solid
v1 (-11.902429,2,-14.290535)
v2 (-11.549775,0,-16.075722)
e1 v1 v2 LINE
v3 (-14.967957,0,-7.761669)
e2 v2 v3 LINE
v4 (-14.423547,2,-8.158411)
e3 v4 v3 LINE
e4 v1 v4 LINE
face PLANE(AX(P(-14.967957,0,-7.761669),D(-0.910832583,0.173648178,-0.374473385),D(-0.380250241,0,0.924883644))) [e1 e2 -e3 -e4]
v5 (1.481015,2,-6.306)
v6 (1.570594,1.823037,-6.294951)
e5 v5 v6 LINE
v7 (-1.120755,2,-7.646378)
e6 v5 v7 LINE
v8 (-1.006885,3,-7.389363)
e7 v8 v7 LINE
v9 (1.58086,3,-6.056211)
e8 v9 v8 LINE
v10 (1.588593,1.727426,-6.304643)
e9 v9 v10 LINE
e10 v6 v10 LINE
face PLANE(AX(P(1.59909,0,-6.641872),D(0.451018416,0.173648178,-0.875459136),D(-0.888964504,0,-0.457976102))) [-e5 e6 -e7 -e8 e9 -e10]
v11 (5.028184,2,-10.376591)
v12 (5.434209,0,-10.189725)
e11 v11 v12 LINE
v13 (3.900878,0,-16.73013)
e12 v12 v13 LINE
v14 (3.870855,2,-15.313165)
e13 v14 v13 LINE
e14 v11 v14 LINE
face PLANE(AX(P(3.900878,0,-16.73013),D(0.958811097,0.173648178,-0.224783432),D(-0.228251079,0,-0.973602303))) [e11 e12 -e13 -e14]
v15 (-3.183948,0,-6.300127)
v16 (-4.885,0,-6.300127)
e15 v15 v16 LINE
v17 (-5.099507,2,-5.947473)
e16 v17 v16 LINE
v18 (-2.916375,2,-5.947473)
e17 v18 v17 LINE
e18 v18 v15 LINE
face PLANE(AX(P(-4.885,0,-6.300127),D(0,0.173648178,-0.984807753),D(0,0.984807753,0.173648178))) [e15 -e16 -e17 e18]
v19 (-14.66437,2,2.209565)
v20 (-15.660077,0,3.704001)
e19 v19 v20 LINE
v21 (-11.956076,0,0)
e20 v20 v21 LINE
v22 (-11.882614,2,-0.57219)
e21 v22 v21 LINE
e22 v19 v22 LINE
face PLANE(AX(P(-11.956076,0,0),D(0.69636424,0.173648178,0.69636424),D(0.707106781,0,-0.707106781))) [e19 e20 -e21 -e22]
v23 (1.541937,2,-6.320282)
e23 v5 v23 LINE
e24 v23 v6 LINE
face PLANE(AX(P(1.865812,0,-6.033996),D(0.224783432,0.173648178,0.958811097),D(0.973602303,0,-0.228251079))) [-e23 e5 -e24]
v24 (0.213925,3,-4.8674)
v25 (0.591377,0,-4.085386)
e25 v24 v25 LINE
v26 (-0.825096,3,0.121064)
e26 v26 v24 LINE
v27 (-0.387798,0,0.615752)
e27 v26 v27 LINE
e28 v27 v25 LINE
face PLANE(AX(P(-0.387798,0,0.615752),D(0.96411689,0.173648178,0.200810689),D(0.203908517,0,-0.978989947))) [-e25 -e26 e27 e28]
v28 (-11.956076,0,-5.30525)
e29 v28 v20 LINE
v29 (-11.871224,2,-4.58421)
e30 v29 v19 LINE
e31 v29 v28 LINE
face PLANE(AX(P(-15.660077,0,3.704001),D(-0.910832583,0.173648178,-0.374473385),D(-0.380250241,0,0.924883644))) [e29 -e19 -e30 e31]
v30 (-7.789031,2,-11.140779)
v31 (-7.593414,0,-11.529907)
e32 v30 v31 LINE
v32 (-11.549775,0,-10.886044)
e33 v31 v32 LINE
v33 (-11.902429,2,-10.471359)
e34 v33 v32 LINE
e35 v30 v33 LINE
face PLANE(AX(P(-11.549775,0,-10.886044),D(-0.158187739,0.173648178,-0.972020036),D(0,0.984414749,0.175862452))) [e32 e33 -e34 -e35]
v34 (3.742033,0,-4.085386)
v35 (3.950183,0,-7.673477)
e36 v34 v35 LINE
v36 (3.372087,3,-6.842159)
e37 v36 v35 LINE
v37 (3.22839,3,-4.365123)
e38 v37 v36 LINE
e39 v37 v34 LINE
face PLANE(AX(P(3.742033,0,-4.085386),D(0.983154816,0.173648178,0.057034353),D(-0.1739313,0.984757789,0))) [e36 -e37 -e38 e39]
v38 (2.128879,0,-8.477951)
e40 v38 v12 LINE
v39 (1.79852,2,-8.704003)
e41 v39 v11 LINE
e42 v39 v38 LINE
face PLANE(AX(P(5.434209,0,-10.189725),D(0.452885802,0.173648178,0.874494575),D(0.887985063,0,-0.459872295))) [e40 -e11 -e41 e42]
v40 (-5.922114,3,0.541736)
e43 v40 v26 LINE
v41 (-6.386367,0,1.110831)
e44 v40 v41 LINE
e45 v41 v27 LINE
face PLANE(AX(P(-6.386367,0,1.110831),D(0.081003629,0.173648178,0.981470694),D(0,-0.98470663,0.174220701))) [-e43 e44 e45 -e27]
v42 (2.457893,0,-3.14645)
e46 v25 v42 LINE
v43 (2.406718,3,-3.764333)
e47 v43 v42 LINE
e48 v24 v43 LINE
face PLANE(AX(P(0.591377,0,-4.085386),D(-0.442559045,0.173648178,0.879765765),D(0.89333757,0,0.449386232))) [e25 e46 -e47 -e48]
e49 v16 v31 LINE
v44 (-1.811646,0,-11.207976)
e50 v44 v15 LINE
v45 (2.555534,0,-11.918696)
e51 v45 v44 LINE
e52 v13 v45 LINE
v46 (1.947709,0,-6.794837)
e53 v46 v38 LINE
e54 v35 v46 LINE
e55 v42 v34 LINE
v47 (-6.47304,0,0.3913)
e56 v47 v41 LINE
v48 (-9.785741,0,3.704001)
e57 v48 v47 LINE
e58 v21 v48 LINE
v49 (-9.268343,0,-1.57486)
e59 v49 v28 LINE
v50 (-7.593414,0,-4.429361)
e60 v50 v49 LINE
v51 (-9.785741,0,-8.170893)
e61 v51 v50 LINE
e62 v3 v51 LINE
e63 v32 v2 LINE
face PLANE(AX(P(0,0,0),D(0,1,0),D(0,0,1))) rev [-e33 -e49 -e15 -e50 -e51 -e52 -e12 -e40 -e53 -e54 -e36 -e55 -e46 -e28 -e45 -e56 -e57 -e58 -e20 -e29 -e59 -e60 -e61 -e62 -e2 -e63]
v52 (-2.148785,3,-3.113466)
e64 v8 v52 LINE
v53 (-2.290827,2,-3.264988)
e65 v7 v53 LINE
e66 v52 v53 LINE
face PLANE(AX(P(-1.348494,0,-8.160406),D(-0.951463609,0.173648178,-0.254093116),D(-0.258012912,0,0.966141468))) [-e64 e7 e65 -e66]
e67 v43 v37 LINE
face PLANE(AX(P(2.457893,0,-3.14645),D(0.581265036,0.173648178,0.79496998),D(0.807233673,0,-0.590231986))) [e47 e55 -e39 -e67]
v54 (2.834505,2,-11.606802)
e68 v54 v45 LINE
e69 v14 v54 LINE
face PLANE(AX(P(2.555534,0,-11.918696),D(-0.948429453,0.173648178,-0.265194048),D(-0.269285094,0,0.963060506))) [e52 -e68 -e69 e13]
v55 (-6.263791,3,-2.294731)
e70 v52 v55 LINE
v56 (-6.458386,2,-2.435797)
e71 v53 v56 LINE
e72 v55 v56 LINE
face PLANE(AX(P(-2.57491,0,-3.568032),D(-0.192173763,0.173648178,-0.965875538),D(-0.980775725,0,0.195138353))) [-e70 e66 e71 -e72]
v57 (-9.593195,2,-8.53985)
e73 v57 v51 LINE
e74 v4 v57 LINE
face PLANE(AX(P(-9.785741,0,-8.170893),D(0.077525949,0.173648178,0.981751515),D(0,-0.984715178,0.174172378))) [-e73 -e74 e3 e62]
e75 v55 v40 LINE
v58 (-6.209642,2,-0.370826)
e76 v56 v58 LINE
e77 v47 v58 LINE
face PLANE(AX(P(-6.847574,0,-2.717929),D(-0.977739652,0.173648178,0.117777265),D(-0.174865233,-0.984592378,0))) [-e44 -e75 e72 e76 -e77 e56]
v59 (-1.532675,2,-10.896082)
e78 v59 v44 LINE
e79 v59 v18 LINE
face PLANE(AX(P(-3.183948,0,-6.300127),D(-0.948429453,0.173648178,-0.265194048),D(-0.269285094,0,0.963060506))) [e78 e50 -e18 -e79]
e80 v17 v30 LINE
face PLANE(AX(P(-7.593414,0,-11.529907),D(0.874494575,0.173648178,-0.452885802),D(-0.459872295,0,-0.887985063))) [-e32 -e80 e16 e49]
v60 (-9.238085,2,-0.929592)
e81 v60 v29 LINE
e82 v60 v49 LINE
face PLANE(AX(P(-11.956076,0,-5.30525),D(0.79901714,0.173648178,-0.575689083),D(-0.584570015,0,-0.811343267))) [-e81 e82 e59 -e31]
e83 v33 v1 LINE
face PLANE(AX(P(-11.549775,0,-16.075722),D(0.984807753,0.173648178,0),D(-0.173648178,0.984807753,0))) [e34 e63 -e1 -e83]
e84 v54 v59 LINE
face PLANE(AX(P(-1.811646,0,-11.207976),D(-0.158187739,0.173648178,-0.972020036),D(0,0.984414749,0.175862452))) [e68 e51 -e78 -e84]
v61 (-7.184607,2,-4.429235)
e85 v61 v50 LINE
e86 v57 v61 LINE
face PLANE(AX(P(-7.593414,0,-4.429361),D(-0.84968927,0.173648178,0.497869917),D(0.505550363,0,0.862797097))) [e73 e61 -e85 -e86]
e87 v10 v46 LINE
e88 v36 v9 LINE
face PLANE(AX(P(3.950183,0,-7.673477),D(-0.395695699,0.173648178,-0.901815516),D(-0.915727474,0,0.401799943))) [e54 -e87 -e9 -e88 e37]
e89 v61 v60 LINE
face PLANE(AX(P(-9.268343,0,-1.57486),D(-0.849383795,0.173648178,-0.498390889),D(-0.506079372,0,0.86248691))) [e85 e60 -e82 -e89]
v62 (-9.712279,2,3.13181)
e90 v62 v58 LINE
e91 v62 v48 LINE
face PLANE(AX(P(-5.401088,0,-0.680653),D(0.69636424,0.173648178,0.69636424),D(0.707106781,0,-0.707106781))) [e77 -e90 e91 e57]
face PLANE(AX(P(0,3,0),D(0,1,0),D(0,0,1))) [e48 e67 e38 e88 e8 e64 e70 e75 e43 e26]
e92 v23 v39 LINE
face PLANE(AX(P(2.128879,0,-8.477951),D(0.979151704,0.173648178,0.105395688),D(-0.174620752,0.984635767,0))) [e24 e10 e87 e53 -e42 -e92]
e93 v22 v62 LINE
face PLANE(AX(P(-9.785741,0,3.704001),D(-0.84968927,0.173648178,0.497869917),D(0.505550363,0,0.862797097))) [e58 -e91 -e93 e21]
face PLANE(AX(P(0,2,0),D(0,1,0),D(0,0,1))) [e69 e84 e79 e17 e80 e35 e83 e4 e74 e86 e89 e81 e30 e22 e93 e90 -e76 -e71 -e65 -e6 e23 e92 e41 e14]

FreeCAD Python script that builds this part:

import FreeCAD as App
import Part
import Sketcher
Q = App.Units.Quantity


def add_polygon(sketch, points):
    """Adds a closed chain of lines whose ends are joined by coincident constraints."""
    first, n = sketch.GeometryCount, len(points)
    for a, b in zip(points, points[1:] + points[:1]):
        sketch.addGeometry(Part.LineSegment(App.Vector(*a, 0), App.Vector(*b, 0)), False)
    for i in range(n):
        sketch.addConstraint(Sketcher.Constraint("Coincident", first + i, 2, first + (i + 1) % n, 1))

doc = App.newDocument("Part")
body = doc.addObject("PartDesign::Body", "Body")

sketch1 = body.newObject("Sketcher::SketchObject", "Sketch")
sketch1.AttachmentSupport = (doc.getObject("XZ_Plane"), [""])
sketch1.MapMode = "FlatFace"
add_polygon(sketch1, [(-6.4, 1.1), (-0.4, 0.6), (0.6, -4.1), (2.5, -3.1), (3.7, -4.1), (4, -7.7), (1.6, -6.6), (-1.3, -8.2), (-2.6, -3.6), (-6.8, -2.7)])
sketch1.addConstraint(Sketcher.Constraint("Horizontal", 1, 2, 3, 2))
sketch1.addConstraint(Sketcher.Constraint("DistanceX", 7, 2, 5, 2, Q("4.174 mm")))
sketch1.addConstraint(Sketcher.Constraint("DistanceX", 0, 2, -1, 1, Q("0.387798 mm")))
sketch1.addConstraint(Sketcher.Constraint("Distance", 1, Q("4.802029 mm")))
sketch1.addConstraint(Sketcher.Constraint("Distance", 3, Q("1.590791 mm")))
sketch1.addConstraint(Sketcher.Constraint("Distance", 5, Q("2.567459 mm")))
sketch1.addConstraint(Sketcher.Constraint("Distance", 6, Q("3.31575 mm")))
sketch1.addConstraint(Sketcher.Constraint("Distance", 9, Q("3.856439 mm")))
sketch1.addConstraint(Sketcher.Constraint("DistanceY", 2, 2, -1, 1, Q("3.14645 mm")))
sketch1.addConstraint(Sketcher.Constraint("DistanceX", -1, 1, 5, 2, Q("1.59909 mm")))
sketch1.addConstraint(Sketcher.Constraint("DistanceY", 5, 2, -1, 1, Q("6.641872 mm")))
sketch1.addConstraint(Sketcher.Constraint("DistanceY", 8, 2, -1, 1, Q("2.717929 mm")))
sketch1.addConstraint(Sketcher.Constraint("DistanceY", -1, 1, 9, 2, Q("1.110831 mm")))
sketch1.addConstraint(Sketcher.Constraint("DistanceY", 1, 2, 0, 2, Q("4.701138 mm")))
sketch1.addConstraint(Sketcher.Constraint("DistanceX", 0, 2, 2, 2, Q("2.845691 mm")))
sketch1.addConstraint(Sketcher.Constraint("DistanceX", 2, 2, 3, 2, Q("1.28414 mm")))
sketch1.addConstraint(Sketcher.Constraint("DistanceX", 3, 2, 4, 2, Q("0.208151 mm")))
sketch1.addConstraint(Sketcher.Constraint("DistanceX", 6, 2, 1, 2, Q("1.93987 mm")))
sketch1.addConstraint(Sketcher.Constraint("DistanceY", 7, 2, 2, 2, Q("0.421582 mm")))
sketch1.addConstraint(Sketcher.Constraint("DistanceX", 8, 2, 1, 2, Q("7.438951 mm")))
pad1 = body.newObject("PartDesign::Pad", "Pad")
pad1.Profile = sketch1
pad1.Length = 3
pad1.Reversed = True
pad1.TaperAngle = -10

sketch2 = body.newObject("Sketcher::SketchObject", "Sketch001")
sketch2.AttachmentSupport = (doc.getObject("XZ_Plane"), [""])
sketch2.MapMode = "FlatFace"
add_polygon(sketch2, [(-5.4, -0.7), (-2.5, -1.4), (-0.9, -5.4), (1.9, -6), (2.1, -8.5), (5.4, -10.2), (3.9, -16.7), (2.6, -11.9), (-1.8, -11.2), (-3.2, -6.3), (-4.9, -6.3), (-7.6, -11.5), (-11.5, -10.9), (-11.5, -16.1), (-15, -7.8), (-9.8, -8.2), (-7.6, -4.4), (-9.3, -1.6), (-12, -5.3), (-15.7, 3.7), (-12, 0), (-9.8, 3.7)])
sketch2.addConstraint(Sketcher.Constraint("Horizontal", 9))
sketch2.addConstraint(Sketcher.Constraint("Vertical", 12))
sketch2.addConstraint(Sketcher.Constraint("PointOnObject", 19, 2, -1))
sketch2.addConstraint(Sketcher.Constraint("Perpendicular", 2, 5))
sketch2.addConstraint(Sketcher.Constraint("Parallel", 6, 8))
sketch2.addConstraint(Sketcher.Constraint("Perpendicular", 4, 10))
sketch2.addConstraint(Sketcher.Constraint("Parallel", 7, 11))
sketch2.addConstraint(Sketcher.Constraint("Parallel", 1, 13))
sketch2.addConstraint(Sketcher.Constraint("Parallel", 13, 18))
sketch2.addConstraint(Sketcher.Constraint("Parallel", 15, 20))
sketch2.addConstraint(Sketcher.Constraint("Parallel", 19, 21))
sketch2.addConstraint(Sketcher.Constraint("Horizontal", 18, 2, 20, 2))
sketch2.addConstraint(Sketcher.Constraint("Vertical", 10, 2, 15, 2))
sketch2.addConstraint(Sketcher.Constraint("Vertical", 17, 2, 19, 2))
sketch2.addConstraint(Sketcher.Constraint("Vertical", 14, 2, 20, 2))
sketch2.addConstraint(Sketcher.Constraint("Angle", 19, Q("-45 deg")))
sketch2.addConstraint(Sketcher.Constraint("DistanceX", 9, 2, -1, 1, Q("4.885 mm")))
sketch2.addConstraint(Sketcher.Constraint("DistanceY", -1, 1, 18, 2, Q("3.704001 mm")))
sketch2.addConstraint(Sketcher.Constraint("DistanceX", 3, 2, 5, 2, Q("1.771999 mm")))
sketch2.addConstraint(Sketcher.Constraint("Distance", 1, Q("4.292899 mm")))
sketch2.addConstraint(Sketcher.Constraint("DistanceY", 12, 2, 12, 1, Q("5.189678 mm")))
sketch2.addConstraint(Sketcher.Constraint("DistanceX", 1, 2, 3, 2, Q("2.9943 mm")))
sketch2.addConstraint(Sketcher.Constraint("DistanceY", 6, 2, 2, 2, Q("5.8847 mm")))
sketch2.addConstraint(Sketcher.Constraint("DistanceY", 15, 2, 16, 2, Q("2.854501 mm")))
sketch2.addConstraint(Sketcher.Constraint("DistanceX", 17, 2, 11, 2, Q("0.406301 mm")))
sketch2.addConstraint(Sketcher.Constraint("DistanceY", 0, 2, 21, 2, Q("0.742602 mm")))
sketch2.addConstraint(Sketcher.Constraint("Distance", 4, Q("3.722281 mm")))
sketch2.addConstraint(Sketcher.Constraint("Distance", 5, Q("6.717738 mm")))
sketch2.addConstraint(Sketcher.Constraint("Distance", 10, Q("5.889491 mm")))
sketch2.addConstraint(Sketcher.Constraint("Distance", 11, Q("4.00841 mm")))
sketch2.addConstraint(Sketcher.Constraint("Distance", 14, Q("5.198348 mm")))
sketch2.addConstraint(Sketcher.Constraint("DistanceX", 9, 2, 9, 1, Q("1.701052 mm")))
sketch2.addConstraint(Sketcher.Constraint("DistanceX", 1, 2, -1, 1, Q("0.865421 mm")))
sketch2.addConstraint(Sketcher.Constraint("DistanceY", 3, 2, -1, 1, Q("8.477951 mm")))
sketch2.addConstraint(Sketcher.Constraint("DistanceX", -1, 1, 4, 2, Q("5.434209 mm")))
sketch2.addConstraint(Sketcher.Constraint("DistanceY", 13, 2, -1, 1, Q("7.761669 mm")))
sketch2.addConstraint(Sketcher.Constraint("DistanceX", 14, 2, -1, 1, Q("9.785741 mm")))
sketch2.addConstraint(Sketcher.Constraint("DistanceY", 15, 2, -1, 1, Q("4.429361 mm")))
sketch2.addConstraint(Sketcher.Constraint("DistanceY", 17, 2, -1, 1, Q("5.30525 mm")))
sketch2.addConstraint(Sketcher.Constraint("DistanceY", 2, 2, 1, 2, Q("0.64031 mm")))
sketch2.addConstraint(Sketcher.Constraint("DistanceY", 4, 2, 2, 2, Q("4.155729 mm")))
sketch2.addConstraint(Sketcher.Constraint("DistanceX", 2, 2, 6, 2, Q("0.689722 mm")))
sketch2.addConstraint(Sketcher.Constraint("DistanceX", 7, 2, 6, 2, Q("4.367179 mm")))
sketch2.addConstraint(Sketcher.Constraint("DistanceX", 16, 2, 15, 2, Q("1.674929 mm")))
pad2 = body.newObject("PartDesign::Pad", "Pad001")
pad2.Profile = sketch2
pad2.Length = 2
pad2.Reversed = True
pad2.TaperAngle = -10

doc.recompute()
